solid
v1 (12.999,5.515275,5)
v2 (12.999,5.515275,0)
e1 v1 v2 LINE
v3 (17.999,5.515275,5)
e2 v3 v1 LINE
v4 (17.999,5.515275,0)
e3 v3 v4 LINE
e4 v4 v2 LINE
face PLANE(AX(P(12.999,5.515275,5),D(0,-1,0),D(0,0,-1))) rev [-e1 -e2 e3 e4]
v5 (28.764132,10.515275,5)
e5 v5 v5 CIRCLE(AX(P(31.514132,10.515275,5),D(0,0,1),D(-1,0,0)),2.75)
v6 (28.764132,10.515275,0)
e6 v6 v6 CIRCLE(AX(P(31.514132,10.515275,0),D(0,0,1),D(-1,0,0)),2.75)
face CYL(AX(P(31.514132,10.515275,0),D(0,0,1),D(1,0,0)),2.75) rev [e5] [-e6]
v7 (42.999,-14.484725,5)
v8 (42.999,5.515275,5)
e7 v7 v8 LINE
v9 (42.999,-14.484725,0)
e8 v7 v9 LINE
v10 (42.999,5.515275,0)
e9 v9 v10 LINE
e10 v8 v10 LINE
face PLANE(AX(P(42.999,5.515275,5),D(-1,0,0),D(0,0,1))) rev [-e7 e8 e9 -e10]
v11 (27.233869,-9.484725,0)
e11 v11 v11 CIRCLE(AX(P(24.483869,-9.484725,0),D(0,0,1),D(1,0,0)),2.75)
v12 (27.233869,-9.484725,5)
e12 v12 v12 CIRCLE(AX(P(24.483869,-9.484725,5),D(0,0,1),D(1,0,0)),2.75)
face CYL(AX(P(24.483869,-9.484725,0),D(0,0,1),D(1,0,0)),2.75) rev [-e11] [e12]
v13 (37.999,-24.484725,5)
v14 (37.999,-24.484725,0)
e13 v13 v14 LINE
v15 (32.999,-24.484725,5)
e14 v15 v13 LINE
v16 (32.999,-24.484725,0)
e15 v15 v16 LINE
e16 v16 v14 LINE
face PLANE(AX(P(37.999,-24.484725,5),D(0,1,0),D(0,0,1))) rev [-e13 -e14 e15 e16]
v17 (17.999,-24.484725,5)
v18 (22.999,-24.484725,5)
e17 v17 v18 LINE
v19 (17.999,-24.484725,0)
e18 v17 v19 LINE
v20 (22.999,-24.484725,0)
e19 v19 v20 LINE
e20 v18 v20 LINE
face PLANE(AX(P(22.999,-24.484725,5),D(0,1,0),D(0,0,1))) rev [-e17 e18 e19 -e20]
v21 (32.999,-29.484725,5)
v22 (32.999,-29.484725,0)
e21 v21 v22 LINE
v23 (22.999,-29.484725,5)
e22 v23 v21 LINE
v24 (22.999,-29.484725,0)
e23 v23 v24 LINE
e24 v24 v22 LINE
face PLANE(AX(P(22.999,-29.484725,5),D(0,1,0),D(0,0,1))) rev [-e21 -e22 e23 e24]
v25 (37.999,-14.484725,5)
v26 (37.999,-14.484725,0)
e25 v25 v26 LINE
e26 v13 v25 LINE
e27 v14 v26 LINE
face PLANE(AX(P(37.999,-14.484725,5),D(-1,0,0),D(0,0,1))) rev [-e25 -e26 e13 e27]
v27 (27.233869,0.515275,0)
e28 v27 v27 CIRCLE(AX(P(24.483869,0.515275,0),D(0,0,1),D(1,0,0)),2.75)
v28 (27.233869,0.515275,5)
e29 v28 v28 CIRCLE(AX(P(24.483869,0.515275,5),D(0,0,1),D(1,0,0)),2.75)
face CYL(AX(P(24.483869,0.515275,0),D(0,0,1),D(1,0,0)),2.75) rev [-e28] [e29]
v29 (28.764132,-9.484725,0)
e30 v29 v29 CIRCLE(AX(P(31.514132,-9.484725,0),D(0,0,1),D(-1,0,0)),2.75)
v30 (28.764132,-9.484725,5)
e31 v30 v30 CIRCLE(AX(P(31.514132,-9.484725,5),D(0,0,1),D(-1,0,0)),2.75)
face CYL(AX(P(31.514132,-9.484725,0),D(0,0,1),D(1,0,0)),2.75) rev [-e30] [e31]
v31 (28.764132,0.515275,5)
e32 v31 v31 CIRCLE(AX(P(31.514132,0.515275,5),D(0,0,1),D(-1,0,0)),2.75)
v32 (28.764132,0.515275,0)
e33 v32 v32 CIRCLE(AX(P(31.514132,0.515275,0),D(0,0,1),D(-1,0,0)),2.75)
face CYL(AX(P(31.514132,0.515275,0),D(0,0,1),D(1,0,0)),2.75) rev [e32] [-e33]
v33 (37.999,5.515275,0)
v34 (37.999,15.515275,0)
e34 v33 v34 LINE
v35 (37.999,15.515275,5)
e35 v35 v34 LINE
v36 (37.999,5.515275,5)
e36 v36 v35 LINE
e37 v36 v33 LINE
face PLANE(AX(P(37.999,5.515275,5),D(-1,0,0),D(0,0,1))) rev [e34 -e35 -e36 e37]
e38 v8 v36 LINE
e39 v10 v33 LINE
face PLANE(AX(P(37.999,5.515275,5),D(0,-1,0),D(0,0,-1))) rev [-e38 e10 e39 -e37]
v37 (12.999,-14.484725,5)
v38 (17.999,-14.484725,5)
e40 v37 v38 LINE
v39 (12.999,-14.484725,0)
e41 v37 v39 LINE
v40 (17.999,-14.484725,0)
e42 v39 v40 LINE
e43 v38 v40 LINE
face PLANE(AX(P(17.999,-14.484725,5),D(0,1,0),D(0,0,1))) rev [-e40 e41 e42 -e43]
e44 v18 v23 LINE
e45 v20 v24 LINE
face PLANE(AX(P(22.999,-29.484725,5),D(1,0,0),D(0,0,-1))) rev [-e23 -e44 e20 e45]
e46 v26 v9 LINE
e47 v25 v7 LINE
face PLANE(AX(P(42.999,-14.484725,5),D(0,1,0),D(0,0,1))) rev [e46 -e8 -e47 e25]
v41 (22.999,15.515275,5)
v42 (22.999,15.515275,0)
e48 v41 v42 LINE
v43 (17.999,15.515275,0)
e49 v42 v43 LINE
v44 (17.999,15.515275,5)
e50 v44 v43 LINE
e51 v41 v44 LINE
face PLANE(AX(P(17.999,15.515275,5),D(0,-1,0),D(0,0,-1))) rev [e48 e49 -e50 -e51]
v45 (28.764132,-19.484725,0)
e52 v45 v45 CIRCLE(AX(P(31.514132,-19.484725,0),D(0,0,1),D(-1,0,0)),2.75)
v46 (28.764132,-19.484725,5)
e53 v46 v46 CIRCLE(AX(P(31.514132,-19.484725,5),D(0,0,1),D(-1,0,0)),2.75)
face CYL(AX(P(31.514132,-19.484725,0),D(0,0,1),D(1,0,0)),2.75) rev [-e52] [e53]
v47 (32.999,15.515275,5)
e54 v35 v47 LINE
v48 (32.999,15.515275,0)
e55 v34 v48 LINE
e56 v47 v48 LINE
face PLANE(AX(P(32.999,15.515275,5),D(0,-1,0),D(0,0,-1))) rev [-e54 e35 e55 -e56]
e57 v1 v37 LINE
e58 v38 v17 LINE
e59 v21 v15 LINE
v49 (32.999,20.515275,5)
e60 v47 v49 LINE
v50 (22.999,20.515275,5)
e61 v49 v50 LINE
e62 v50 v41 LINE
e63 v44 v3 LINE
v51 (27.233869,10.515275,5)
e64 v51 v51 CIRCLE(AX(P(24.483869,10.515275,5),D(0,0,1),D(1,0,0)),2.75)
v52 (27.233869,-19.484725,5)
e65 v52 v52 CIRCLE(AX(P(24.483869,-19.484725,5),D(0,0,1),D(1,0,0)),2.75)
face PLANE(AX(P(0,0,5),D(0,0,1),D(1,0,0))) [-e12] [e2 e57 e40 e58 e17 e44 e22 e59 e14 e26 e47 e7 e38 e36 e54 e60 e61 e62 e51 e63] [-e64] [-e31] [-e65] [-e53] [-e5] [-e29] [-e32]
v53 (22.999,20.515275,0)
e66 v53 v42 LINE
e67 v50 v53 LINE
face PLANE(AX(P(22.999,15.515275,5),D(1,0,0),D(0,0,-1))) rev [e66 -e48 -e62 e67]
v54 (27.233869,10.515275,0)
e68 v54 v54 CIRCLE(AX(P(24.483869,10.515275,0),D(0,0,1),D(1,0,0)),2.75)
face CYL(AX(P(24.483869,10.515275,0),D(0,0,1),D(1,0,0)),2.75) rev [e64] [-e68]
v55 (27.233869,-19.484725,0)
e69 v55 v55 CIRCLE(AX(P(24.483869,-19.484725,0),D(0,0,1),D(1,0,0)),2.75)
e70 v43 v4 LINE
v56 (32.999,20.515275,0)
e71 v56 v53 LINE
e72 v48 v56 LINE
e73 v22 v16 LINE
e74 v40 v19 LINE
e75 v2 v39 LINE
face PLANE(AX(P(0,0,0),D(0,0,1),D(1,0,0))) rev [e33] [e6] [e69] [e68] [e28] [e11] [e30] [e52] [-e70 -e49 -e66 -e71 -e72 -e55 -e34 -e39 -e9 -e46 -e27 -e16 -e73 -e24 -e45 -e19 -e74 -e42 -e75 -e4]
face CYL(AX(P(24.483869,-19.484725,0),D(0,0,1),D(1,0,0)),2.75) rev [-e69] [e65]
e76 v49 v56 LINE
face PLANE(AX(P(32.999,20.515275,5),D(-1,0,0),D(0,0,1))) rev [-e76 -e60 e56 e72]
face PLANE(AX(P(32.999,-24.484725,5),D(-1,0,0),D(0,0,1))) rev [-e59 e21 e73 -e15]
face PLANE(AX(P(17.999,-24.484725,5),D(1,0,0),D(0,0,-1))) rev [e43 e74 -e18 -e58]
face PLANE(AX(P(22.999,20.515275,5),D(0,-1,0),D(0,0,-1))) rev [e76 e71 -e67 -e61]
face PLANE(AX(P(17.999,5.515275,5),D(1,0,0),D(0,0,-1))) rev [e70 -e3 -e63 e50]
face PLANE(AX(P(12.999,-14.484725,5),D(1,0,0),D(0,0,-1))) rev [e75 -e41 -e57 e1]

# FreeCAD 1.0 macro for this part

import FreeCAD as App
import Part
import Sketcher
from FreeCAD import Vector

doc = App.newDocument("Part")
params = doc.addObject("Spreadsheet::Sheet", "Params")
for row, (alias, value) in enumerate([
    ("sketch1_width", "10 mm"),
    ("sketch1_width2", "5 mm"),
    ("sketch1_height", "20 mm"),
    ("pad1_length", "5 mm"),
    ("sketch2_diameter", "5.5 mm"),
], start=1):
    params.set(f"A{row}", alias)
    params.set(f"B{row}", "=" + value)
    params.setAlias(f"B{row}", alias)

body = doc.addObject("PartDesign::Body", "Body")

sketch1 = doc.addObject("Sketcher::SketchObject", "Sketch")
body.addObject(sketch1)
sketch1.AttachmentSupport = (doc.XY_Plane, [""])
sketch1.MapMode = "FlatFace"
sketch1.addGeometry([
    Part.LineSegment(Vector(32.999, 20.515275, 0), Vector(22.999, 20.515275, 0)),
    Part.LineSegment(Vector(22.999, 20.515275, 0), Vector(22.999, 15.515275, 0)),
    Part.LineSegment(Vector(22.999, 15.515275, 0), Vector(17.999, 15.515275, 0)),
    Part.LineSegment(Vector(17.999, 15.515275, 0), Vector(17.999, 5.515275, 0)),
    Part.LineSegment(Vector(17.999, 5.515275, 0), Vector(12.999, 5.515275, 0)),
    Part.LineSegment(Vector(12.999, 5.515275, 0), Vector(12.999, -14.484725, 0)),
    Part.LineSegment(Vector(12.999, -14.484725, 0), Vector(17.999, -14.484725, 0)),
    Part.LineSegment(Vector(17.999, -14.484725, 0), Vector(17.999, -24.484725, 0)),
    Part.LineSegment(Vector(17.999, -24.484725, 0), Vector(22.999, -24.484725, 0)),
    Part.LineSegment(Vector(22.999, -24.484725, 0), Vector(22.999, -29.484725, 0)),
    Part.LineSegment(Vector(22.999, -29.484725, 0), Vector(32.999, -29.484725, 0)),
    Part.LineSegment(Vector(32.999, -29.484725, 0), Vector(32.999, -24.484725, 0)),
    Part.LineSegment(Vector(32.999, -24.484725, 0), Vector(37.999, -24.484725, 0)),
    Part.LineSegment(Vector(37.999, -24.484725, 0), Vector(37.999, -14.484725, 0)),
    Part.LineSegment(Vector(37.999, -14.484725, 0), Vector(42.999, -14.484725, 0)),
    Part.LineSegment(Vector(42.999, -14.484725, 0), Vector(42.999, 5.515275, 0)),
    Part.LineSegment(Vector(42.999, 5.515275, 0), Vector(37.999, 5.515275, 0)),
    Part.LineSegment(Vector(37.999, 5.515275, 0), Vector(37.999, 15.515275, 0)),
    Part.LineSegment(Vector(37.999, 15.515275, 0), Vector(32.999, 15.515275, 0)),
    Part.LineSegment(Vector(32.999, 15.515275, 0), Vector(32.999, 20.515275, 0)),
], False)
sketch1.addConstraint([
    Sketcher.Constraint("Coincident", 0, 2, 1, 1),
    Sketcher.Constraint("Coincident", 1, 2, 2, 1),
    Sketcher.Constraint("Coincident", 2, 2, 3, 1),
    Sketcher.Constraint("Coincident", 3, 2, 4, 1),
    Sketcher.Constraint("Coincident", 4, 2, 5, 1),
    Sketcher.Constraint("Coincident", 5, 2, 6, 1),
    Sketcher.Constraint("Coincident", 6, 2, 7, 1),
    Sketcher.Constraint("Coincident", 7, 2, 8, 1),
    Sketcher.Constraint("Coincident", 8, 2, 9, 1),
    Sketcher.Constraint("Coincident", 9, 2, 10, 1),
    Sketcher.Constraint("Coincident", 10, 2, 11, 1),
    Sketcher.Constraint("Coincident", 11, 2, 12, 1),
    Sketcher.Constraint("Coincident", 12, 2, 13, 1),
    Sketcher.Constraint("Coincident", 13, 2, 14, 1),
    Sketcher.Constraint("Coincident", 14, 2, 15, 1),
    Sketcher.Constraint("Coincident", 15, 2, 16, 1),
    Sketcher.Constraint("Coincident", 16, 2, 17, 1),
    Sketcher.Constraint("Coincident", 17, 2, 18, 1),
    Sketcher.Constraint("Coincident", 18, 2, 19, 1),
    Sketcher.Constraint("Coincident", 19, 2, 0, 1),
    Sketcher.Constraint("Horizontal", 0),
    Sketcher.Constraint("Vertical", 1),
    Sketcher.Constraint("Horizontal", 2),
    Sketcher.Constraint("Vertical", 3),
    Sketcher.Constraint("Horizontal", 4),
    Sketcher.Constraint("Vertical", 5),
    Sketcher.Constraint("Horizontal", 6),
    Sketcher.Constraint("Vertical", 7),
    Sketcher.Constraint("Horizontal", 8),
    Sketcher.Constraint("Vertical", 9),
    Sketcher.Constraint("Horizontal", 10),
    Sketcher.Constraint("Vertical", 11),
    Sketcher.Constraint("Horizontal", 12),
    Sketcher.Constraint("Vertical", 13),
    Sketcher.Constraint("Horizontal", 14),
    Sketcher.Constraint("Vertical", 15),
    Sketcher.Constraint("Horizontal", 16),
    Sketcher.Constraint("Vertical", 17),
    Sketcher.Constraint("Horizontal", 18),
    Sketcher.Constraint("Vertical", 19),
    Sketcher.Constraint("Horizontal", 8, 2, 11, 2),
    Sketcher.Constraint("Horizontal", 6, 2, 13, 2),
    Sketcher.Constraint("Horizontal", 4, 2, 15, 2),
    Sketcher.Constraint("Horizontal", 2, 2, 17, 2),
    Sketcher.Constraint("Vertical", 3, 2, 6, 2),
    Sketcher.Constraint("Vertical", 1, 2, 8, 2),
    Sketcher.Constraint("Vertical", 13, 2, 16, 2),
    Sketcher.Constraint("Vertical", 11, 2, 18, 2),
    Sketcher.Constraint("Equal", 2, 4),
    Sketcher.Constraint("Equal", 8, 12),
    Sketcher.Constraint("Equal", 12, 14),
    Sketcher.Constraint("Equal", 18, 1),
    Sketcher.Constraint("Equal", 10, 3),
    Sketcher.Constraint("Equal", 3, 7),
    Sketcher.Constraint("Equal", 1, 9),
    Sketcher.Constraint("DistanceX", 0, 2, 0, 1, 10.0),
    Sketcher.Constraint("DistanceX", 2, 2, 2, 1, 5.0),
    Sketcher.Constraint("DistanceY", 5, 2, 5, 1, 20.0),
    Sketcher.Constraint("DistanceX", -1, 1, 0, 2, 22.999),
    Sketcher.Constraint("DistanceY", -1, 1, 0, 2, 20.515275),
])
sketch1.setExpression("Constraints[55]", "Params.sketch1_width")
sketch1.setExpression("Constraints[56]", "Params.sketch1_width2")
sketch1.setExpression("Constraints[57]", "Params.sketch1_height")
pad1 = doc.addObject("PartDesign::Pad", "Pad")
body.addObject(pad1)
pad1.Profile = sketch1
pad1.setExpression("Length", "Params.pad1_length")

sketch2 = doc.addObject("Sketcher::SketchObject", "Sketch001")
body.addObject(sketch2)
sketch2.AttachmentSupport = (doc.XY_Plane, [""])
sketch2.MapMode = "FlatFace"
sketch2.AttachmentOffset = App.Placement(Vector(0, 0, 5), App.Rotation())
sketch2.addGeometry([
    Part.Circle(Vector(24.483869, 10.515275, 0), Vector(0, 0, 1), 2.75),
    Part.Circle(Vector(24.483869, 0.515275, 0), Vector(0, 0, 1), 2.75),
    Part.Circle(Vector(24.483869, -9.484725, 0), Vector(0, 0, 1), 2.75),
    Part.Circle(Vector(24.483869, -19.484725, 0), Vector(0, 0, 1), 2.75),
    Part.Circle(Vector(31.514132, -19.484725, 0), Vector(0, 0, 1), 2.75),
    Part.Circle(Vector(31.514132, -9.484725, 0), Vector(0, 0, 1), 2.75),
    Part.Circle(Vector(31.514132, 0.515275, 0), Vector(0, 0, 1), 2.75),
    Part.Circle(Vector(31.514132, 10.515275, 0), Vector(0, 0, 1), 2.75),
], False)
sketch2.addConstraint([
    Sketcher.Constraint("Equal", 0, 1),
    Sketcher.Constraint("Equal", 1, 2),
    Sketcher.Constraint("Equal", 2, 3),
    Sketcher.Constraint("Equal", 3, 4),
    Sketcher.Constraint("Equal", 4, 5),
    Sketcher.Constraint("Equal", 5, 6),
    Sketcher.Constraint("Equal", 6, 7),
    Sketcher.Constraint("Horizontal", 3, 3, 4, 3),
    Sketcher.Constraint("Horizontal", 2, 3, 5, 3),
    Sketcher.Constraint("Horizontal", 1, 3, 6, 3),
    Sketcher.Constraint("Horizontal", 0, 3, 7, 3),
    Sketcher.Constraint("Vertical", 0, 3, 1, 3),
    Sketcher.Constraint("Vertical", 1, 3, 2, 3),
    Sketcher.Constraint("Vertical", 2, 3, 3, 3),
    Sketcher.Constraint("Vertical", 4, 3, 5, 3),
    Sketcher.Constraint("Vertical", 5, 3, 6, 3),
    Sketcher.Constraint("Vertical", 6, 3, 7, 3),
    Sketcher.Constraint("Diameter", 0, 5.5),
    Sketcher.Constraint("DistanceY", 1, 3, 0, 3, 10.0),
    Sketcher.Constraint("DistanceY", 2, 3, 1, 3, 10.0),
    Sketcher.Constraint("DistanceY", 3, 3, 2, 3, 10.0),
    Sketcher.Constraint("DistanceX", -1, 1, 0, 3, 24.483869),
    Sketcher.Constraint("DistanceY", -1, 1, 0, 3, 10.515275),
    Sketcher.Constraint("DistanceX", -1, 1, 4, 3, 31.514132),
])
sketch2.setExpression("Constraints[17]", "Params.sketch2_diameter")
pocket1 = doc.addObject("PartDesign::Pocket", "Pocket")
body.addObject(pocket1)
pocket1.Profile = sketch2
pocket1.Type = "ThroughAll"

doc.recompute()
